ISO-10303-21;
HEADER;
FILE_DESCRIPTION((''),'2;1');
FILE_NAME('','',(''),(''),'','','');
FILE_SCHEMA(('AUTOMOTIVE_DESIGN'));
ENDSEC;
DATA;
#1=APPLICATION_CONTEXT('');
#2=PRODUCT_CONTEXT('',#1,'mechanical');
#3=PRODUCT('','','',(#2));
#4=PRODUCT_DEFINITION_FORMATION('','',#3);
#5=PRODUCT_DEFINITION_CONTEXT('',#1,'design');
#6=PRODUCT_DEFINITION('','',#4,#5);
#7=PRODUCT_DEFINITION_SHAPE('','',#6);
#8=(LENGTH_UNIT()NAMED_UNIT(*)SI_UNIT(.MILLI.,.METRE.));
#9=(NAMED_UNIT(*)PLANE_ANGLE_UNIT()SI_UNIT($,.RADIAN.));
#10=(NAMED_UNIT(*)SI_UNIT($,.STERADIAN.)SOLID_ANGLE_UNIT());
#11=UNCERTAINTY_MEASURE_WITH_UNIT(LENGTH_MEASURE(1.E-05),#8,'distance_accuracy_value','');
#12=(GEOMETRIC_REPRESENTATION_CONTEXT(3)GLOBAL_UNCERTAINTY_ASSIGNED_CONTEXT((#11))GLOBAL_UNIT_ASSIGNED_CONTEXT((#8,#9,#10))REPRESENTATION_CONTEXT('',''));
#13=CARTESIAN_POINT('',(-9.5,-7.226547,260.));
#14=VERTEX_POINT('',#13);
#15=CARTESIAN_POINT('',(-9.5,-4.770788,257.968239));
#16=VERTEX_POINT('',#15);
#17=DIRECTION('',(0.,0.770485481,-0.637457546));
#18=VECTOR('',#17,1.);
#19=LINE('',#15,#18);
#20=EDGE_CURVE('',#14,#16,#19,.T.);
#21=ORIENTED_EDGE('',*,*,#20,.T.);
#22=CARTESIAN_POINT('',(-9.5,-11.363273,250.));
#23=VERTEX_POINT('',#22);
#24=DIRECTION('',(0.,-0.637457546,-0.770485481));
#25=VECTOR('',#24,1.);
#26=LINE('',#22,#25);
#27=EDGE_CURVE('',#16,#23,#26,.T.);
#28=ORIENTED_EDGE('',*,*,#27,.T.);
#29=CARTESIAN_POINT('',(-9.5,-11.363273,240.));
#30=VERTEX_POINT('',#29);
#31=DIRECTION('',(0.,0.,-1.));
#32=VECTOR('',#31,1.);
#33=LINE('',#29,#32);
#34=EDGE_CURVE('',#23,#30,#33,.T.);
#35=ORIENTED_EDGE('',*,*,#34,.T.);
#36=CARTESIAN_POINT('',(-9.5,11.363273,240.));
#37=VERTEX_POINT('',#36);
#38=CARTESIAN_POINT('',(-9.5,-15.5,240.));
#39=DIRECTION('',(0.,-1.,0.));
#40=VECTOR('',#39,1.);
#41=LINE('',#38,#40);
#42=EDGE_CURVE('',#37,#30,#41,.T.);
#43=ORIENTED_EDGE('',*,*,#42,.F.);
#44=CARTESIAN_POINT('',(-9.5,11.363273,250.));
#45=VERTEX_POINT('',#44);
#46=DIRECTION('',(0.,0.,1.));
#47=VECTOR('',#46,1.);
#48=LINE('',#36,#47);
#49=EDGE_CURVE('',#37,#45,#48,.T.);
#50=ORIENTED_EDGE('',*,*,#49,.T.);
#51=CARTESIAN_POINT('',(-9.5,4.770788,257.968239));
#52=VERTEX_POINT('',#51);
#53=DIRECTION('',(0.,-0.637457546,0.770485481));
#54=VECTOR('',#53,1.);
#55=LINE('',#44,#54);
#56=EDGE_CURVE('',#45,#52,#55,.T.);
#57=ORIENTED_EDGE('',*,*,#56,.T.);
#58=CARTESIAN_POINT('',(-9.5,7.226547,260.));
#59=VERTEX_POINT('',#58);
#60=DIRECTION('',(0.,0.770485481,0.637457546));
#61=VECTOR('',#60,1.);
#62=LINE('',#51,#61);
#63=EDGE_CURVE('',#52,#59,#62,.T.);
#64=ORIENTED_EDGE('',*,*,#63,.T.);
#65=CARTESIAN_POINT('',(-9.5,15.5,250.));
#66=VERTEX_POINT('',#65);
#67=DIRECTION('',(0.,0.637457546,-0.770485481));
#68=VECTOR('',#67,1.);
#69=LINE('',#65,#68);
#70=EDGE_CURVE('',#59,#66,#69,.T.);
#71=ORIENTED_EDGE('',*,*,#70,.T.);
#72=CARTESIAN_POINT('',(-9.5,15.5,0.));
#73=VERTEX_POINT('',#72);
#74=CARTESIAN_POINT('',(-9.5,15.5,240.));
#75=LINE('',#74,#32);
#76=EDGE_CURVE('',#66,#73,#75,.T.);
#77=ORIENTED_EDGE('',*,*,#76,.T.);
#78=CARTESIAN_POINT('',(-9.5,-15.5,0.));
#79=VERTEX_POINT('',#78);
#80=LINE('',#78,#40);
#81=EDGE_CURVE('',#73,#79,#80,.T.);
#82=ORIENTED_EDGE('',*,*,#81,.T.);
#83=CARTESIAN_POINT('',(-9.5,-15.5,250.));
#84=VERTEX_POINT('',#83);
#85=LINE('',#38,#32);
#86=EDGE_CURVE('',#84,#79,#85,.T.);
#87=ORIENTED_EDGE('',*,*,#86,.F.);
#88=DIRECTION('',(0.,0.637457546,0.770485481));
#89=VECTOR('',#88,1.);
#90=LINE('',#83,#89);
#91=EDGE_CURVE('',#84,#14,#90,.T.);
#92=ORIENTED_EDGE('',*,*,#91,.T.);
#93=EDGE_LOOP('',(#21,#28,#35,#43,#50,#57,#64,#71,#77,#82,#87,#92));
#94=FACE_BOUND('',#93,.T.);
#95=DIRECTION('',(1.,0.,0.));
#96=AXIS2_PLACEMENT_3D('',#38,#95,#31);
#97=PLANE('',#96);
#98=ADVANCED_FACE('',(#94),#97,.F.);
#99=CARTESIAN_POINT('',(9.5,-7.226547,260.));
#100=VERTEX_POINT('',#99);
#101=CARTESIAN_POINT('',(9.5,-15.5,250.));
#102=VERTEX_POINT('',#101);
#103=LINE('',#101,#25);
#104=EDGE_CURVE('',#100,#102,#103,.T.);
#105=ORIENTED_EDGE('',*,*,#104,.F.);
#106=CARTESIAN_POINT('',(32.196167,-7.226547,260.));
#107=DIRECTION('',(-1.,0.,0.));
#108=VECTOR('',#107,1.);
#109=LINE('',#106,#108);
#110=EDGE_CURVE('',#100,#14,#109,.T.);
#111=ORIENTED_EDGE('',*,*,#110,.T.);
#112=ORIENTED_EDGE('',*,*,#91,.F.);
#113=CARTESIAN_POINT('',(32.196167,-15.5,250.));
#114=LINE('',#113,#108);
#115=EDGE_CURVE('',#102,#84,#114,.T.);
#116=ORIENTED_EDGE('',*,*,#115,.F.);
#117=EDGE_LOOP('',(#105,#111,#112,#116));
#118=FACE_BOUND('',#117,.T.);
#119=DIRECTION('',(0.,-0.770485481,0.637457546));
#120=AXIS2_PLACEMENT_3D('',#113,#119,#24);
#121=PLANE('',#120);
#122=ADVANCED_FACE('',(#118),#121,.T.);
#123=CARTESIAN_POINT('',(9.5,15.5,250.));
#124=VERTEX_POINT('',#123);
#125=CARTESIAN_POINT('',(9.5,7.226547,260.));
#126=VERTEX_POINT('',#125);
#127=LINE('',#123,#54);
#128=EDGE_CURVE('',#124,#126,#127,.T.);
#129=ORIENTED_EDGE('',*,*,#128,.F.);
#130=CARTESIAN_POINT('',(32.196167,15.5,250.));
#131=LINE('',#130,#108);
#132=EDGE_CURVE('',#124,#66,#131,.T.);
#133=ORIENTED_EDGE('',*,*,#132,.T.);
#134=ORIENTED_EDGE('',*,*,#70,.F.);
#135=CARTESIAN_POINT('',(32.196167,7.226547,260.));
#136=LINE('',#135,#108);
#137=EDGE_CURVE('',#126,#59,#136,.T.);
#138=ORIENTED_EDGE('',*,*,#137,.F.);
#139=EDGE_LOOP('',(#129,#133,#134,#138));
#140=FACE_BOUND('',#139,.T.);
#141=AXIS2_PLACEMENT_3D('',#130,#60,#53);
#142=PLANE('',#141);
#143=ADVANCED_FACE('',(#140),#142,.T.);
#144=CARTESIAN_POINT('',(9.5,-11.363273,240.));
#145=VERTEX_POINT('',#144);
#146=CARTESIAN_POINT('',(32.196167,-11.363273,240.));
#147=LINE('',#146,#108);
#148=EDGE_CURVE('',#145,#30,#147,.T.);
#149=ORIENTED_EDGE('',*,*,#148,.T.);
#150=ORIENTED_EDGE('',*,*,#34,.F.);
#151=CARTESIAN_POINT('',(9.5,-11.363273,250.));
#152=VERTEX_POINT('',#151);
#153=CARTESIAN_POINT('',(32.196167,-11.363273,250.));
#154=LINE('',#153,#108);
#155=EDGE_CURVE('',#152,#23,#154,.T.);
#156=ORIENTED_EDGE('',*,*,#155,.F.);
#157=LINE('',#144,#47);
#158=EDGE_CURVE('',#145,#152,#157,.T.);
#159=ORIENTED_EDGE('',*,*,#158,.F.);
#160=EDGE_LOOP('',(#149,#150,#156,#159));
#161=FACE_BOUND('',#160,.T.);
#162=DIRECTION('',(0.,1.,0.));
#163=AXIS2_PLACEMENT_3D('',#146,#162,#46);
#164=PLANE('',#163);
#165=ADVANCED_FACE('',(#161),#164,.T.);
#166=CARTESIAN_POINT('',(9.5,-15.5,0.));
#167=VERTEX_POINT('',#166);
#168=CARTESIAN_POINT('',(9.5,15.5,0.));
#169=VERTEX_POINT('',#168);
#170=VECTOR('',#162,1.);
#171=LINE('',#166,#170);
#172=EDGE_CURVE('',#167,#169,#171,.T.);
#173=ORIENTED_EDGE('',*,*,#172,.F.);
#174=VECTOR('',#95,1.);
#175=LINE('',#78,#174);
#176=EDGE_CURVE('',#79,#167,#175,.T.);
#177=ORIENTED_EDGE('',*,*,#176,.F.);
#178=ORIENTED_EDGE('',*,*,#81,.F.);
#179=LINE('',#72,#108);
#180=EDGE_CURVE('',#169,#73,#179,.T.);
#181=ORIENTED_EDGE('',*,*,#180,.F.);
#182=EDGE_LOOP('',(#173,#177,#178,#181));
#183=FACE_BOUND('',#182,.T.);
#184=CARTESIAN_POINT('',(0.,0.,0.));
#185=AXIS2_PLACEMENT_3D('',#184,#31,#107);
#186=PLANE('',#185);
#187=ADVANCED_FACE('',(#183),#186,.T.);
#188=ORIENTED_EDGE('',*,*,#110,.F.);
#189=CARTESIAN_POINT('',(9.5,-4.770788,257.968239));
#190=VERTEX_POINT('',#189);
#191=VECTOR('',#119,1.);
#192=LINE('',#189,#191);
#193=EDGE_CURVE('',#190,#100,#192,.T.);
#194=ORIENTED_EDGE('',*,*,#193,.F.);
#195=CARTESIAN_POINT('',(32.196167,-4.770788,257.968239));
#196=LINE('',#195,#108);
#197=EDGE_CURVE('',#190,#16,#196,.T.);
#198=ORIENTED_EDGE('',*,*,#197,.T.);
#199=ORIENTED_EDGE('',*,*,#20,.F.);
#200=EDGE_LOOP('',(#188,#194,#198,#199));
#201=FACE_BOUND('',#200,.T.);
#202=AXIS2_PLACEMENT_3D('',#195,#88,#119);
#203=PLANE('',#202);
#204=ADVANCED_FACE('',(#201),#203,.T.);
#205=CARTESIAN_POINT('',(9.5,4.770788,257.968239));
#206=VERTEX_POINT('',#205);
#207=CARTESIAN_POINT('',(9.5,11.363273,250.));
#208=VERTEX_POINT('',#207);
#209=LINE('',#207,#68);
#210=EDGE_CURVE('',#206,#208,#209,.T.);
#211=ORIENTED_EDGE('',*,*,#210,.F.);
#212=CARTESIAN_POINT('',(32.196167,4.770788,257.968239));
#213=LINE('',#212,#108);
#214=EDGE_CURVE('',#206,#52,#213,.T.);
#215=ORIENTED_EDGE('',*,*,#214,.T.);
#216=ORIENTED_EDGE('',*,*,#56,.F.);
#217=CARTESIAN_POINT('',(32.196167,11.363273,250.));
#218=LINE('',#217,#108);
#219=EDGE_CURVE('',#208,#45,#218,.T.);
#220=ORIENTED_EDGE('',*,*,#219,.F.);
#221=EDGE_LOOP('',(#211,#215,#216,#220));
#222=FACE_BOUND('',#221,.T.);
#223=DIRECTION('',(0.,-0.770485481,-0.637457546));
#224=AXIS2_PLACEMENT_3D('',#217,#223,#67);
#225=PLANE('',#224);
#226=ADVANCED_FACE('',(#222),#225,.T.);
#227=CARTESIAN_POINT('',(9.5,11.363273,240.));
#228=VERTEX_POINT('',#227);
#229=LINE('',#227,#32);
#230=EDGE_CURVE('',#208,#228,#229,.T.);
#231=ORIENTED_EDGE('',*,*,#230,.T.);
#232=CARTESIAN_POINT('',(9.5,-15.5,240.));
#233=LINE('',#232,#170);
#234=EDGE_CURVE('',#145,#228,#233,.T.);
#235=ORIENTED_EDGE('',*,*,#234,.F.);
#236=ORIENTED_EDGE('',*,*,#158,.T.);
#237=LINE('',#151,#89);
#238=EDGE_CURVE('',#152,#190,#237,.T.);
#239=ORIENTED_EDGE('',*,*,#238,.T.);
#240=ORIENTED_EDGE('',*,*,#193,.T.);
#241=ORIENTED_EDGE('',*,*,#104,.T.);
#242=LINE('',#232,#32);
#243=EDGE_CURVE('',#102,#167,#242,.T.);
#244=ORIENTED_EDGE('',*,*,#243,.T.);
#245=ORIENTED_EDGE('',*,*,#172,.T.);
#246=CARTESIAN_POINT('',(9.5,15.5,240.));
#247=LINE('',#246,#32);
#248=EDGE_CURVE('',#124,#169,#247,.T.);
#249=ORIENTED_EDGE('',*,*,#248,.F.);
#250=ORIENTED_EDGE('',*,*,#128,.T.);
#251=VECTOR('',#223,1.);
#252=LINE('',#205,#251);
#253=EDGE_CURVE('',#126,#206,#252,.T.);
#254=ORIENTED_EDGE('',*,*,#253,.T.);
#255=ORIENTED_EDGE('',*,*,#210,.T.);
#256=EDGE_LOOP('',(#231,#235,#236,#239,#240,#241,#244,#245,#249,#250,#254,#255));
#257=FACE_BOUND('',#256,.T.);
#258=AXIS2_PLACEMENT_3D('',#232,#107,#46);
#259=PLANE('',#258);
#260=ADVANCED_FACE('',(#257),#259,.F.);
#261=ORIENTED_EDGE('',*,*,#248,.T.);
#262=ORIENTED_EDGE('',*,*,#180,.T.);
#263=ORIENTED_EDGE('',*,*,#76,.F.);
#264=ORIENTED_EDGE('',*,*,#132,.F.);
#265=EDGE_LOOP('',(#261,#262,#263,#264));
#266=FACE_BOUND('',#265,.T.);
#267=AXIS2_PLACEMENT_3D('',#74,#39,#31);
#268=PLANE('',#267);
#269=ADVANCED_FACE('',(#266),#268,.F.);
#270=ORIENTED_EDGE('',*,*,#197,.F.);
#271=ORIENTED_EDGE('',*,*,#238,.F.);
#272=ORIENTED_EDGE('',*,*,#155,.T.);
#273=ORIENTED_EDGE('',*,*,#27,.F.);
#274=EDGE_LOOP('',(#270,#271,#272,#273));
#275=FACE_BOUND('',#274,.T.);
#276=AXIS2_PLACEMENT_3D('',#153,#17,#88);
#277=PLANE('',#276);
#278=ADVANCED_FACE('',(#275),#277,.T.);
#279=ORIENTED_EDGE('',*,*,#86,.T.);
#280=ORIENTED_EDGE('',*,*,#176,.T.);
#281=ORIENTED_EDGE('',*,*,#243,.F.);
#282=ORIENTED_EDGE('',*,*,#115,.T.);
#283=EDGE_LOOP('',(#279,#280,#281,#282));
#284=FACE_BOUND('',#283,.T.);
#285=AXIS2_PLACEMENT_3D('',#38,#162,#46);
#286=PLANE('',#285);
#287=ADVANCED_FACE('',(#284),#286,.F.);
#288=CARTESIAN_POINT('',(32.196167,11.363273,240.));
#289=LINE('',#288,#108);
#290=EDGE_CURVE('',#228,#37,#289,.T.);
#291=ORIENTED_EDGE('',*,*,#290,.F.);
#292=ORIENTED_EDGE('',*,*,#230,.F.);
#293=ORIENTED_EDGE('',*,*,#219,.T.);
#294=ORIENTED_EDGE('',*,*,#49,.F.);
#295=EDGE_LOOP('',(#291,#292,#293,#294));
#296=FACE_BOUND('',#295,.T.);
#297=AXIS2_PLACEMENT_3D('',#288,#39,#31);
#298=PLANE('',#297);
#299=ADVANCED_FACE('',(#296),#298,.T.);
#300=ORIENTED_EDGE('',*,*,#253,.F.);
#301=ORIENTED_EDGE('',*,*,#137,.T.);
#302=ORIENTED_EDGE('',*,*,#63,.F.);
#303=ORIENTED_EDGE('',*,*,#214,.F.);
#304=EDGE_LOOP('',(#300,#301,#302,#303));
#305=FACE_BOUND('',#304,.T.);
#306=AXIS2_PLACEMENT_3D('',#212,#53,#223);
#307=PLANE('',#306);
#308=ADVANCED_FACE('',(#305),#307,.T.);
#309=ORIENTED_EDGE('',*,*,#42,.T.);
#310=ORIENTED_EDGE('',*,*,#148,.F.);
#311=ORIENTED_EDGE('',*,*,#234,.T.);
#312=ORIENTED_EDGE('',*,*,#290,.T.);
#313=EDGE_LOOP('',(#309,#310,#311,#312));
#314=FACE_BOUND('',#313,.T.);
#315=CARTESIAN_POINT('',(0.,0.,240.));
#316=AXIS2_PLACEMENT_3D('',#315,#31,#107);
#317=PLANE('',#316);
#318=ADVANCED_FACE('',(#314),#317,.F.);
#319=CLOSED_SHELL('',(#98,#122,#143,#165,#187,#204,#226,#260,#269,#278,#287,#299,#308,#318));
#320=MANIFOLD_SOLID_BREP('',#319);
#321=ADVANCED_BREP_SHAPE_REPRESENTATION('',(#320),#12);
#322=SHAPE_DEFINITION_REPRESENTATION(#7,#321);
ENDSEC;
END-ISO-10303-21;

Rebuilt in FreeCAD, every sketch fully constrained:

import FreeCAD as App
import Part
import Sketcher
from FreeCAD import Vector
Q = App.Units.Quantity

doc = App.newDocument("Part")
body = doc.addObject("PartDesign::Body", "Body")

# Sketch on XY plane
sketch1 = doc.addObject("Sketcher::SketchObject", "Sketch")
body.addObject(sketch1)
sketch1.AttachmentSupport = (doc.XY_Plane, [""])
sketch1.MapMode = "FlatFace"
sketch1.addGeometry(Part.LineSegment(Vector(-10, 16, 0), Vector(-10, -16, 0)), False)
sketch1.addGeometry(Part.LineSegment(Vector(-10, -16, 0), Vector(10, -16, 0)), False)
sketch1.addGeometry(Part.LineSegment(Vector(10, -16, 0), Vector(10, 16, 0)), False)
sketch1.addGeometry(Part.LineSegment(Vector(10, 16, 0), Vector(-10, 16, 0)), False)
sketch1.addConstraint(Sketcher.Constraint("Coincident", 0, 2, 1, 1))
sketch1.addConstraint(Sketcher.Constraint("Coincident", 1, 2, 2, 1))
sketch1.addConstraint(Sketcher.Constraint("Coincident", 2, 2, 3, 1))
sketch1.addConstraint(Sketcher.Constraint("Coincident", 3, 2, 0, 1))
sketch1.addConstraint(Sketcher.Constraint("Vertical", 0))
sketch1.addConstraint(Sketcher.Constraint("Horizontal", 1))
sketch1.addConstraint(Sketcher.Constraint("Vertical", 2))
sketch1.addConstraint(Sketcher.Constraint("Horizontal", 3))
sketch1.addConstraint(Sketcher.Constraint("Symmetric", 0, 2, 2, 2, -1, 1))
sketch1.addConstraint(Sketcher.Constraint("DistanceX", 1, 1, 1, 2, Q("19 mm")))
sketch1.addConstraint(Sketcher.Constraint("DistanceY", 0, 2, 0, 1, Q("31 mm")))
pad1 = doc.addObject("PartDesign::Pad", "Pad")
body.addObject(pad1)
pad1.Profile = sketch1
pad1.Length = 240

# Sketch on YZ plane
sketch2 = doc.addObject("Sketcher::SketchObject", "Sketch001")
body.addObject(sketch2)
sketch2.AttachmentSupport = (doc.YZ_Plane, [""])
sketch2.MapMode = "FlatFace"
sketch2.AttachmentOffset = App.Placement(Vector(0, 0, -9.5), App.Rotation())
sketch2.addGeometry(Part.LineSegment(Vector(15.5, 250, 0), Vector(15.5, 240, 0)), False)
sketch2.addGeometry(Part.LineSegment(Vector(15.5, 240, 0), Vector(11.4, 240, 0)), False)
sketch2.addGeometry(Part.LineSegment(Vector(11.4, 240, 0), Vector(11.4, 250, 0)), False)
sketch2.addGeometry(Part.LineSegment(Vector(11.4, 250, 0), Vector(4.8, 258, 0)), False)
sketch2.addGeometry(Part.LineSegment(Vector(4.8, 258, 0), Vector(7.2, 260, 0)), False)
sketch2.addGeometry(Part.LineSegment(Vector(7.2, 260, 0), Vector(15.5, 250, 0)), False)
sketch2.addGeometry(Part.LineSegment(Vector(-11.4, 240, 0), Vector(-15.5, 240, 0)), False)
sketch2.addGeometry(Part.LineSegment(Vector(-15.5, 240, 0), Vector(-15.5, 250, 0)), False)
sketch2.addGeometry(Part.LineSegment(Vector(-15.5, 250, 0), Vector(-7.2, 260, 0)), False)
sketch2.addGeometry(Part.LineSegment(Vector(-7.2, 260, 0), Vector(-4.8, 258, 0)), False)
sketch2.addGeometry(Part.LineSegment(Vector(-4.8, 258, 0), Vector(-11.4, 250, 0)), False)
sketch2.addGeometry(Part.LineSegment(Vector(-11.4, 250, 0), Vector(-11.4, 240, 0)), False)
sketch2.addConstraint(Sketcher.Constraint("Coincident", 0, 2, 1, 1))
sketch2.addConstraint(Sketcher.Constraint("Coincident", 1, 2, 2, 1))
sketch2.addConstraint(Sketcher.Constraint("Coincident", 2, 2, 3, 1))
sketch2.addConstraint(Sketcher.Constraint("Coincident", 3, 2, 4, 1))
sketch2.addConstraint(Sketcher.Constraint("Coincident", 4, 2, 5, 1))
sketch2.addConstraint(Sketcher.Constraint("Coincident", 5, 2, 0, 1))
sketch2.addConstraint(Sketcher.Constraint("Coincident", 6, 2, 7, 1))
sketch2.addConstraint(Sketcher.Constraint("Coincident", 7, 2, 8, 1))
sketch2.addConstraint(Sketcher.Constraint("Coincident", 8, 2, 9, 1))
sketch2.addConstraint(Sketcher.Constraint("Coincident", 9, 2, 10, 1))
sketch2.addConstraint(Sketcher.Constraint("Coincident", 10, 2, 11, 1))
sketch2.addConstraint(Sketcher.Constraint("Coincident", 11, 2, 6, 1))
sketch2.addConstraint(Sketcher.Constraint("Vertical", 0))
sketch2.addConstraint(Sketcher.Constraint("Horizontal", 1))
sketch2.addConstraint(Sketcher.Constraint("Vertical", 2))
sketch2.addConstraint(Sketcher.Constraint("Horizontal", 6))
sketch2.addConstraint(Sketcher.Constraint("Vertical", 7))
sketch2.addConstraint(Sketcher.Constraint("Vertical", 11))
sketch2.addConstraint(Sketcher.Constraint("Symmetric", 0, 2, 6, 2, -2))
sketch2.addConstraint(Sketcher.Constraint("Symmetric", 4, 2, 8, 2, -2))
sketch2.addConstraint(Sketcher.Constraint("Symmetric", 3, 2, 9, 2, -2))
sketch2.addConstraint(Sketcher.Constraint("Symmetric", 2, 2, 10, 2, -2))
sketch2.addConstraint(Sketcher.Constraint("Perpendicular", 3, 4))
sketch2.addConstraint(Sketcher.Constraint("Perpendicular", 4, 5))
sketch2.addConstraint(Sketcher.Constraint("Perpendicular", 8, 9))
sketch2.addConstraint(Sketcher.Constraint("Horizontal", 2, 2, 5, 2))
sketch2.addConstraint(Sketcher.Constraint("DistanceY", 0, 2, 0, 1, Q("10 mm")))
sketch2.addConstraint(Sketcher.Constraint("DistanceY", -1, 1, 0, 2, Q("240 mm")))
sketch2.addConstraint(Sketcher.Constraint("DistanceY", -1, 1, 4, 2, Q("260 mm")))
sketch2.addConstraint(Sketcher.Constraint("DistanceX", 6, 2, 0, 2, Q("31 mm")))
sketch2.addConstraint(Sketcher.Constraint("Distance", 5, Q("12.97883 mm")))
sketch2.addConstraint(Sketcher.Constraint("DistanceX", 1, 2, 1, 1, Q("4.136727 mm")))
pad2 = doc.addObject("PartDesign::Pad", "Pad001")
body.addObject(pad2)
pad2.Profile = sketch2
pad2.Length = 19

doc.recompute()
